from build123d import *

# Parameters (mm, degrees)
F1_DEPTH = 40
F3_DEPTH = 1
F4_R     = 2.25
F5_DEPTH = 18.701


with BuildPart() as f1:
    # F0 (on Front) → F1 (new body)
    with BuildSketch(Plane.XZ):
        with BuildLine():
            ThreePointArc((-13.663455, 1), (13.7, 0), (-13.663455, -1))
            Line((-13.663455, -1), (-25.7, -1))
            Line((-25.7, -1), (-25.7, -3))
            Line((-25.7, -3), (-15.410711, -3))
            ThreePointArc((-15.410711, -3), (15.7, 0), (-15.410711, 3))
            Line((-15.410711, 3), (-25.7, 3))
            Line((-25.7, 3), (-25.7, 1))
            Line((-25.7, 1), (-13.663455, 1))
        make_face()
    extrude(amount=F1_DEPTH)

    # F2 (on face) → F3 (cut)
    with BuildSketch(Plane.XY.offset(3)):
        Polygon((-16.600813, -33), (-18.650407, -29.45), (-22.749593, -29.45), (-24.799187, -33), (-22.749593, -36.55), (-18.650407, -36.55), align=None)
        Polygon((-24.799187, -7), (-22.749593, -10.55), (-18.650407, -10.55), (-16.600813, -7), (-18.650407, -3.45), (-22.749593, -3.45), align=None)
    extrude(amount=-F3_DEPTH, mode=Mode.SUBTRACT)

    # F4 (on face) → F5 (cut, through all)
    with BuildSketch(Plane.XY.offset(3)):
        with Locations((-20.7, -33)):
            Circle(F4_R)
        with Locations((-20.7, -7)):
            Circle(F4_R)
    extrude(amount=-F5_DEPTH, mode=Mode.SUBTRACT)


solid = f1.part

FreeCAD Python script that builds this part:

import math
import FreeCAD as App
import Part
import Sketcher

V = App.Vector
Q = App.Units.Quantity


def add_polygon(sketch, points):
    """Adds a closed chain of lines whose ends are joined by coincident constraints."""
    first, n = sketch.GeometryCount, len(points)
    for a, b in zip(points, points[1:] + points[:1]):
        sketch.addGeometry(Part.LineSegment(App.Vector(*a, 0), App.Vector(*b, 0)), False)
    for i in range(n):
        sketch.addConstraint(Sketcher.Constraint("Coincident", first + i, 2, first + (i + 1) % n, 1))

doc = App.newDocument("Part")
body = doc.addObject("PartDesign::Body", "Body")

# Sketch on XZ plane
sketch1 = body.newObject("Sketcher::SketchObject", "Sketch")
sketch1.AttachmentSupport = (doc.getObject("XZ_Plane"), [""])
sketch1.MapMode = "FlatFace"
sketch1.addGeometry(Part.ArcOfCircle(Part.Circle(V(0, 0, 0), V(0, 0, 1), 13.7), math.radians(-176), math.radians(176)), False)
sketch1.addGeometry(Part.LineSegment(V(-13.7, -1, 0), V(-25.7, -1, 0)), False)
sketch1.addGeometry(Part.LineSegment(V(-25.7, -1, 0), V(-25.7, -3, 0)), False)
sketch1.addGeometry(Part.LineSegment(V(-25.7, -3, 0), V(-15.4, -3, 0)), False)
sketch1.addGeometry(Part.ArcOfCircle(Part.Circle(V(0, 0, 0), V(0, 0, 1), 15.7), math.radians(-169), math.radians(169)), False)
sketch1.addGeometry(Part.LineSegment(V(-15.4, 3, 0), V(-25.7, 3, 0)), False)
sketch1.addGeometry(Part.LineSegment(V(-25.7, 3, 0), V(-25.7, 1, 0)), False)
sketch1.addGeometry(Part.LineSegment(V(-25.7, 1, 0), V(-13.7, 1, 0)), False)
sketch1.addConstraint(Sketcher.Constraint("Coincident", 0, 1, 1, 1))
sketch1.addConstraint(Sketcher.Constraint("Coincident", 1, 2, 2, 1))
sketch1.addConstraint(Sketcher.Constraint("Coincident", 2, 2, 3, 1))
sketch1.addConstraint(Sketcher.Constraint("Coincident", 3, 2, 4, 1))
sketch1.addConstraint(Sketcher.Constraint("Coincident", 4, 2, 5, 1))
sketch1.addConstraint(Sketcher.Constraint("Coincident", 5, 2, 6, 1))
sketch1.addConstraint(Sketcher.Constraint("Coincident", 6, 2, 7, 1))
sketch1.addConstraint(Sketcher.Constraint("Coincident", 7, 2, 0, 2))
sketch1.addConstraint(Sketcher.Constraint("Horizontal", 1))
sketch1.addConstraint(Sketcher.Constraint("Vertical", 2))
sketch1.addConstraint(Sketcher.Constraint("Horizontal", 3))
sketch1.addConstraint(Sketcher.Constraint("Horizontal", 5))
sketch1.addConstraint(Sketcher.Constraint("Vertical", 6))
sketch1.addConstraint(Sketcher.Constraint("Horizontal", 7))
sketch1.addConstraint(Sketcher.Constraint("Coincident", 0, 3, -1, 1))
sketch1.addConstraint(Sketcher.Constraint("Coincident", 4, 3, -1, 1))
sketch1.addConstraint(Sketcher.Constraint("Symmetric", 2, 2, 5, 2, -1))
sketch1.addConstraint(Sketcher.Constraint("Vertical", 0, 1, 7, 2))
sketch1.addConstraint(Sketcher.Constraint("Radius", 0, 13.7))
sketch1.addConstraint(Sketcher.Constraint("Radius", 4, 15.7))
sketch1.addConstraint(Sketcher.Constraint("DistanceY", 2, 2, 2, 1, 2.0))
sketch1.addConstraint(Sketcher.Constraint("DistanceY", 0, 1, -1, 1, 1.0))
sketch1.addConstraint(Sketcher.Constraint("DistanceX", 1, 2, -1, 1, 25.7))
pad1 = body.newObject("PartDesign::Pad", "Pad")
pad1.Profile = sketch1
pad1.Length = 40

# Sketch on XY plane
sketch2 = body.newObject("Sketcher::SketchObject", "Sketch001")
sketch2.AttachmentSupport = (doc.getObject("XY_Plane"), [""])
sketch2.MapMode = "FlatFace"
sketch2.AttachmentOffset = App.Placement(V(0, 0, 3), App.Rotation())
add_polygon(sketch2, [(-16.6, -33), (-18.7, -29.4), (-22.7, -29.4), (-24.8, -33), (-22.7, -36.5), (-18.7, -36.5)])  # lines 0-5
add_polygon(sketch2, [(-24.8, -7), (-22.7, -10.6), (-18.7, -10.6), (-16.6, -7), (-18.7, -3.5), (-22.7, -3.5)])  # lines 6-11
sketch2.addConstraint(Sketcher.Constraint("Horizontal", 1))
sketch2.addConstraint(Sketcher.Constraint("Horizontal", 4))
sketch2.addConstraint(Sketcher.Constraint("Horizontal", 7))
sketch2.addConstraint(Sketcher.Constraint("Horizontal", 10))
sketch2.addConstraint(Sketcher.Constraint("Parallel", 0, 3))
sketch2.addConstraint(Sketcher.Constraint("Parallel", 2, 5))
sketch2.addConstraint(Sketcher.Constraint("Parallel", 3, 6))
sketch2.addConstraint(Sketcher.Constraint("Parallel", 5, 8))
sketch2.addConstraint(Sketcher.Constraint("Parallel", 6, 9))
sketch2.addConstraint(Sketcher.Constraint("Parallel", 8, 11))
sketch2.addConstraint(Sketcher.Constraint("Horizontal", 2, 2, 5, 2))
sketch2.addConstraint(Sketcher.Constraint("Horizontal", 8, 2, 11, 2))
sketch2.addConstraint(Sketcher.Constraint("Vertical", 1, 2, 3, 2))
sketch2.addConstraint(Sketcher.Constraint("Vertical", 0, 2, 4, 2))
sketch2.addConstraint(Sketcher.Constraint("Vertical", 3, 2, 6, 2))
sketch2.addConstraint(Sketcher.Constraint("Vertical", 4, 2, 7, 2))
sketch2.addConstraint(Sketcher.Constraint("Vertical", 5, 2, 8, 2))
sketch2.addConstraint(Sketcher.Constraint("Vertical", 7, 2, 9, 2))
sketch2.addConstraint(Sketcher.Constraint("Angle", 0, Q("120.000007 deg")))
sketch2.addConstraint(Sketcher.Constraint("DistanceY", 2, 2, -1, 1, 33.0))
sketch2.addConstraint(Sketcher.Constraint("DistanceY", 8, 2, -1, 1, 7.0))
sketch2.addConstraint(Sketcher.Constraint("DistanceY", 3, 2, 1, 2, 7.1))
sketch2.addConstraint(Sketcher.Constraint("DistanceX", 1, 2, 1, 1, 4.099186))
sketch2.addConstraint(Sketcher.Constraint("DistanceX", 0, 2, -1, 1, 18.650407))
pocket1 = body.newObject("PartDesign::Pocket", "Pocket")
pocket1.Profile = sketch2
pocket1.Length = 1

# Sketch on XY plane
sketch3 = body.newObject("Sketcher::SketchObject", "Sketch002")
sketch3.AttachmentSupport = (doc.getObject("XY_Plane"), [""])
sketch3.MapMode = "FlatFace"
sketch3.AttachmentOffset = App.Placement(V(0, 0, 3), App.Rotation())
sketch3.addGeometry(Part.Circle(V(-20.7, -33, 0), V(0, 0, 1), 2.2), False)
sketch3.addGeometry(Part.Circle(V(-20.7, -7, 0), V(0, 0, 1), 2.2), False)
sketch3.addConstraint(Sketcher.Constraint("Equal", 0, 1))
sketch3.addConstraint(Sketcher.Constraint("Vertical", 0, 3, 1, 3))
sketch3.addConstraint(Sketcher.Constraint("Diameter", 0, 4.5))
sketch3.addConstraint(Sketcher.Constraint("DistanceY", 0, 3, -1, 1, 33.0))
sketch3.addConstraint(Sketcher.Constraint("DistanceY", 1, 3, -1, 1, 7.0))
sketch3.addConstraint(Sketcher.Constraint("DistanceX", 0, 3, -1, 1, 20.7))
pocket2 = body.newObject("PartDesign::Pocket", "Pocket001")
pocket2.Profile = sketch3
pocket2.Type = "ThroughAll"

doc.recompute()
